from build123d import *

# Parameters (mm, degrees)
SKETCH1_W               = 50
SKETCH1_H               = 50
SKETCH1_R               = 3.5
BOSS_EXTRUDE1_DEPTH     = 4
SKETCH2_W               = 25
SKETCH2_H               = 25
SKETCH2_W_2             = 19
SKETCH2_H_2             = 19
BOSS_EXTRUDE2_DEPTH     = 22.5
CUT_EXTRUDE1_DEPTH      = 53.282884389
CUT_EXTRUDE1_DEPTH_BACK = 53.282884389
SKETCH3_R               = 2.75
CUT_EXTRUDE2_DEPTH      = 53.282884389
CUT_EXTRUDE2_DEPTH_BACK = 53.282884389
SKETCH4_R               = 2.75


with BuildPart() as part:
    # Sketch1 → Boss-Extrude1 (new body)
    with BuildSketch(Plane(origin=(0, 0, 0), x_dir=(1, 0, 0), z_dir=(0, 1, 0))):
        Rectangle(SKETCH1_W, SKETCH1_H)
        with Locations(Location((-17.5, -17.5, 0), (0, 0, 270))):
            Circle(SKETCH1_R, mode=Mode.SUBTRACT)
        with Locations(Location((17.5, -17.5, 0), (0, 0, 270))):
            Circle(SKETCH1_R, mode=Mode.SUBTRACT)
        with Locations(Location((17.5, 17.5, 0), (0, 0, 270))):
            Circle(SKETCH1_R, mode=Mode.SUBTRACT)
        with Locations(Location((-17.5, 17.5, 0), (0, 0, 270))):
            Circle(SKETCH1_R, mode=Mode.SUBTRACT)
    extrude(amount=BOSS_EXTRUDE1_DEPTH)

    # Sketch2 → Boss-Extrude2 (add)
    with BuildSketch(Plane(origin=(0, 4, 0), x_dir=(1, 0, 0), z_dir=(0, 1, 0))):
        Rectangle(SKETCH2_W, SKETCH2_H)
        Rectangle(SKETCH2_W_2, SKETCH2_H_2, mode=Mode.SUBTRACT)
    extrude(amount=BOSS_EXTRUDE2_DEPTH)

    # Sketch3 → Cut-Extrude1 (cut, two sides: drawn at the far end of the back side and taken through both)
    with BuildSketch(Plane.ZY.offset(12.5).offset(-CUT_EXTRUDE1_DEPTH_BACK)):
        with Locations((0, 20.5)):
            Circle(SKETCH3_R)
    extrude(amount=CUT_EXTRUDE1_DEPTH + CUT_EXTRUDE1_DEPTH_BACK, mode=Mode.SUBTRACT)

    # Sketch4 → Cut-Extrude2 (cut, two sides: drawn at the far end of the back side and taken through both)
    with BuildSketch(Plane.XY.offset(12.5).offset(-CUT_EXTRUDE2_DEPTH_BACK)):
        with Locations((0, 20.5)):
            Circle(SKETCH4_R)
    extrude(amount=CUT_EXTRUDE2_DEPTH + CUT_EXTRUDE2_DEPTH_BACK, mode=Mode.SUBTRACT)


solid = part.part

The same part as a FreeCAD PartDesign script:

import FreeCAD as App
import Part
import Sketcher
Q = App.Units.Quantity


def add_polygon(sketch, points):
    """Adds a closed chain of lines whose ends are joined by coincident constraints."""
    first, n = sketch.GeometryCount, len(points)
    for a, b in zip(points, points[1:] + points[:1]):
        sketch.addGeometry(Part.LineSegment(App.Vector(*a, 0), App.Vector(*b, 0)), False)
    for i in range(n):
        sketch.addConstraint(Sketcher.Constraint("Coincident", first + i, 2, first + (i + 1) % n, 1))

doc = App.newDocument("Part")
body = doc.addObject("PartDesign::Body", "Body")

sketch1 = body.newObject("Sketcher::SketchObject", "Sketch")
sketch1.AttachmentSupport = (doc.getObject("XZ_Plane"), [""])
sketch1.MapMode = "FlatFace"
add_polygon(sketch1, [(-25, -25), (-25, 25), (25, 25), (25, -25)])
sketch1.addGeometry(Part.Circle(App.Vector(-17.5, 17.5, 0), App.Vector(0, 0, 1), 3.5), False)
sketch1.addGeometry(Part.Circle(App.Vector(17.5, 17.5, 0), App.Vector(0, 0, 1), 3.5), False)
sketch1.addGeometry(Part.Circle(App.Vector(-17.5, -17.5, 0), App.Vector(0, 0, 1), 3.5), False)
sketch1.addGeometry(Part.Circle(App.Vector(17.5, -17.5, 0), App.Vector(0, 0, 1), 3.5), False)
sketch1.addConstraint([
    Sketcher.Constraint("Vertical", 0),
    Sketcher.Constraint("Horizontal", 1),
    Sketcher.Constraint("Vertical", 2),
    Sketcher.Constraint("Horizontal", 3),
    Sketcher.Constraint("Equal", 4, 5),
    Sketcher.Constraint("Equal", 5, 6),
    Sketcher.Constraint("Equal", 6, 7),
    Sketcher.Constraint("Symmetric", 5, 3, 6, 3, -1, 1),
    Sketcher.Constraint("Symmetric", 4, 3, 7, 3, -1, 1),
    Sketcher.Constraint("Symmetric", 0, 2, 2, 2, -1, 1),
    Sketcher.Constraint("Symmetric", 4, 3, 5, 3, -2),
    Sketcher.Constraint("Equal", 3, 0),
    Sketcher.Constraint("Diameter", 4, Q("7 mm")),
    Sketcher.Constraint("DistanceX", 1, 1, 1, 2, Q("50 mm")),
    Sketcher.Constraint("DistanceX", 4, 3, 5, 3, Q("35 mm")),
    Sketcher.Constraint("DistanceY", 6, 3, 4, 3, Q("35 mm")),
])
pad1 = body.newObject("PartDesign::Pad", "Pad")
pad1.Profile = sketch1
pad1.Length = 4
pad1.Reversed = True

sketch2 = body.newObject("Sketcher::SketchObject", "Sketch001")
sketch2.AttachmentSupport = (doc.getObject("XZ_Plane"), [""])
sketch2.MapMode = "FlatFace"
sketch2.AttachmentOffset = App.Placement(App.Vector(0, 0, -4), App.Rotation())
add_polygon(sketch2, [(-12, -12), (-12, 12), (12, 12), (12, -12)])
add_polygon(sketch2, [(10, 10), (-10, 10), (-10, -10), (10, -10)])
sketch2.addConstraint([
    Sketcher.Constraint("Vertical", 0),
    Sketcher.Constraint("Horizontal", 1),
    Sketcher.Constraint("Vertical", 2),
    Sketcher.Constraint("Horizontal", 3),
    Sketcher.Constraint("Horizontal", 4),
    Sketcher.Constraint("Vertical", 5),
    Sketcher.Constraint("Horizontal", 6),
    Sketcher.Constraint("Vertical", 7),
    Sketcher.Constraint("Symmetric", 0, 2, 2, 2, -1, 1),
    Sketcher.Constraint("Symmetric", 4, 2, 6, 2, -1, 1),
    Sketcher.Constraint("Equal", 3, 0),
    Sketcher.Constraint("Equal", 6, 5),
    Sketcher.Constraint("DistanceX", 1, 1, 1, 2, Q("25 mm")),
    Sketcher.Constraint("DistanceX", 4, 2, 4, 1, Q("19 mm")),
])
pad2 = body.newObject("PartDesign::Pad", "Pad001")
pad2.Profile = sketch2
pad2.Length = 22.5
pad2.Reversed = True

sketch3 = body.newObject("Sketcher::SketchObject", "Sketch002")
sketch3.AttachmentSupport = (doc.getObject("YZ_Plane"), [""])
sketch3.MapMode = "FlatFace"
sketch3.AttachmentOffset = App.Placement(App.Vector(0, 0, -12.5), App.Rotation())
sketch3.addGeometry(Part.Circle(App.Vector(20.5, 0, 0), App.Vector(0, 0, 1), 2.8), False)
sketch3.addConstraint([
    Sketcher.Constraint("PointOnObject", 0, 3, -1),
    Sketcher.Constraint("Diameter", 0, Q("5.5 mm")),
    Sketcher.Constraint("DistanceX", -1, 1, 0, 3, Q("20.5 mm")),
])
pocket1 = body.newObject("PartDesign::Pocket", "Pocket")
pocket1.Profile = sketch3
pocket1.Type = "ThroughAll"
pocket1.Midplane = True

sketch4 = body.newObject("Sketcher::SketchObject", "Sketch003")
sketch4.AttachmentSupport = (doc.getObject("XY_Plane"), [""])
sketch4.MapMode = "FlatFace"
sketch4.AttachmentOffset = App.Placement(App.Vector(0, 0, 12.5), App.Rotation())
sketch4.addGeometry(Part.Circle(App.Vector(0, 20.5, 0), App.Vector(0, 0, 1), 2.8), False)
sketch4.addConstraint([
    Sketcher.Constraint("PointOnObject", 0, 3, -2),
    Sketcher.Constraint("Diameter", 0, Q("5.5 mm")),
    Sketcher.Constraint("DistanceY", -1, 1, 0, 3, Q("20.5 mm")),
])
pocket2 = body.newObject("PartDesign::Pocket", "Pocket001")
pocket2.Profile = sketch4
pocket2.Type = "ThroughAll"
pocket2.Midplane = True

doc.recompute()
